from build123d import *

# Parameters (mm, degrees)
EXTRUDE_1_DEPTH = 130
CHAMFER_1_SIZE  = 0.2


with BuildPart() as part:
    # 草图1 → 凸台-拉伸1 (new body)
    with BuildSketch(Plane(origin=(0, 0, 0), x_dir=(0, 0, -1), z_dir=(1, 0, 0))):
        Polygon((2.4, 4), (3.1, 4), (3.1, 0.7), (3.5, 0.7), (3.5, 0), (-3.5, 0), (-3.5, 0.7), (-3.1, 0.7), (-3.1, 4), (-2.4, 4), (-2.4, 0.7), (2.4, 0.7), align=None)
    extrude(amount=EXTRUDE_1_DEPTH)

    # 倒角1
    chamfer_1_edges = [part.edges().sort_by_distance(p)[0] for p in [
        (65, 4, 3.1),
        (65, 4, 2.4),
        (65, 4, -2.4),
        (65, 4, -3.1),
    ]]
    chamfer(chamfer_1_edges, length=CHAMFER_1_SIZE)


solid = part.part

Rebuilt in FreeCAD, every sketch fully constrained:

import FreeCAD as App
import Part
import Sketcher


def edges_at(feature, points):
    """Names of the edges that pass closest to the given points."""
    edges = feature.Shape.Edges
    near = lambda p: min(range(len(edges)), key=lambda i: edges[i].distToShape(Part.Vertex(*p))[0])
    return sorted({f"Edge{near(p) + 1}" for p in points})


def add_polygon(sketch, points):
    """Adds a closed chain of lines whose ends are joined by coincident constraints."""
    first, n = sketch.GeometryCount, len(points)
    for a, b in zip(points, points[1:] + points[:1]):
        sketch.addGeometry(Part.LineSegment(App.Vector(*a, 0), App.Vector(*b, 0)), False)
    for i in range(n):
        sketch.addConstraint(Sketcher.Constraint("Coincident", first + i, 2, first + (i + 1) % n, 1))

doc = App.newDocument("Part")
body = doc.addObject("PartDesign::Body", "Body")

sketch1 = doc.addObject("Sketcher::SketchObject", "Sketch")
body.addObject(sketch1)
sketch1.AttachmentSupport = (doc.YZ_Plane, [""])
sketch1.MapMode = "FlatFace"
add_polygon(sketch1, [(4, -3.1), (4, -2.4), (0.7, -2.4), (0.7, 2.4), (4, 2.4), (4, 3.1), (0.7, 3.1), (0.7, 3.5), (0, 3.5), (0, -3.5), (0.7, -3.5), (0.7, -3.1)])
sketch1.addConstraint(Sketcher.Constraint("Vertical", 0))
sketch1.addConstraint(Sketcher.Constraint("Horizontal", 1))
sketch1.addConstraint(Sketcher.Constraint("Vertical", 2))
sketch1.addConstraint(Sketcher.Constraint("Horizontal", 3))
sketch1.addConstraint(Sketcher.Constraint("Vertical", 4))
sketch1.addConstraint(Sketcher.Constraint("Horizontal", 5))
sketch1.addConstraint(Sketcher.Constraint("Vertical", 6))
sketch1.addConstraint(Sketcher.Constraint("Horizontal", 7))
sketch1.addConstraint(Sketcher.Constraint("Vertical", 8))
sketch1.addConstraint(Sketcher.Constraint("Horizontal", 9))
sketch1.addConstraint(Sketcher.Constraint("Vertical", 10))
sketch1.addConstraint(Sketcher.Constraint("Horizontal", 11))
sketch1.addConstraint(Sketcher.Constraint("Symmetric", 7, 2, 8, 2, -1, 1))
sketch1.addConstraint(Sketcher.Constraint("Symmetric", 0, 2, 3, 2, -1))
sketch1.addConstraint(Sketcher.Constraint("Symmetric", 5, 2, 10, 2, -1))
sketch1.addConstraint(Sketcher.Constraint("Vertical", 2, 2, 5, 2))
sketch1.addConstraint(Sketcher.Constraint("Equal", 9, 0))
sketch1.addConstraint(Sketcher.Constraint("DistanceY", 8, 2, 8, 1, 7.0))
sketch1.addConstraint(Sketcher.Constraint("DistanceX", 1, 2, 1, 1, 3.3))
sketch1.addConstraint(Sketcher.Constraint("DistanceX", 7, 2, 7, 1, 0.7))
sketch1.addConstraint(Sketcher.Constraint("DistanceY", 2, 1, 2, 2, 4.8))
pad1 = doc.addObject("PartDesign::Pad", "Pad")
body.addObject(pad1)
pad1.Profile = sketch1
pad1.Length = 130
doc.recompute()

chamfer = doc.addObject("PartDesign::Chamfer", "Chamfer")
body.addObject(chamfer)
chamfer.Base = (pad1, edges_at(pad1, [
    (65, 4, 3.1),
    (65, 4, 2.4),
    (65, 4, -2.4),
    (65, 4, -3.1),
]))
chamfer.Size = 0.2

doc.recompute()
